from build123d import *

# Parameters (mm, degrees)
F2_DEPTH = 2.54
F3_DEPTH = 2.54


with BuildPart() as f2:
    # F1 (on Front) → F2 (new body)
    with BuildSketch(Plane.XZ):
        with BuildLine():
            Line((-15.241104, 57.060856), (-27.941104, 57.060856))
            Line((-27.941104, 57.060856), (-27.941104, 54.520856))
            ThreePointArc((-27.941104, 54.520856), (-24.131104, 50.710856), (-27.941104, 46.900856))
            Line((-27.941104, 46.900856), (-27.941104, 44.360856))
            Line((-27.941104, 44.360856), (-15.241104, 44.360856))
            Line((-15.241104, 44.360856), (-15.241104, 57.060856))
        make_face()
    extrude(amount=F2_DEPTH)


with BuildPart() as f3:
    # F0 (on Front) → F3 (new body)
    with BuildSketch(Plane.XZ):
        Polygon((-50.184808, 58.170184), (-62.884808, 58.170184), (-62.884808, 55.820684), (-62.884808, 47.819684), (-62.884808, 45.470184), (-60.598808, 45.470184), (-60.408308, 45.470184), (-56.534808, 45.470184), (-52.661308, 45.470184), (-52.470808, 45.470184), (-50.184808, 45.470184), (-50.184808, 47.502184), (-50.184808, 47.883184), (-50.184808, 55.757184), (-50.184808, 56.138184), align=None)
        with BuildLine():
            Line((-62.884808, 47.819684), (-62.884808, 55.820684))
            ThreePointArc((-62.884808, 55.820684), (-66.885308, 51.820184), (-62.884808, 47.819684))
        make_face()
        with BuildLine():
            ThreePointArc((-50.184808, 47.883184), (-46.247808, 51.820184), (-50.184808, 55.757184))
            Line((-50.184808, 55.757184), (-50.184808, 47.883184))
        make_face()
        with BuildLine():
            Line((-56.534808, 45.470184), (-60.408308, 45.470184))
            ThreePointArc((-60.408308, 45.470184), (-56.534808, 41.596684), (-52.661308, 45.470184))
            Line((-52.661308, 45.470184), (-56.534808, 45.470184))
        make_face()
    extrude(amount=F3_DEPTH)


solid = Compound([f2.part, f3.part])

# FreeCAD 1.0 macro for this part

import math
import FreeCAD as App
import Part
import Sketcher

V = App.Vector
Q = App.Units.Quantity

doc = App.newDocument("Part")
body = doc.addObject("PartDesign::Body", "Body")

sketch1 = body.newObject("Sketcher::SketchObject", "Sketch")
sketch1.AttachmentSupport = (doc.getObject("XZ_Plane"), [""])
sketch1.MapMode = "FlatFace"
sketch1.addGeometry([
    Part.LineSegment(V(-15.2, 57.1, 0), V(-27.9, 57.1, 0)),
    Part.LineSegment(V(-27.9, 57.1, 0), V(-27.9, 54.5, 0)),
    Part.ArcOfCircle(Part.Circle(V(-27.9, 50.7, 0), V(0, 0, 1), 3.8), math.radians(-90), math.radians(90)),
    Part.LineSegment(V(-27.9, 46.9, 0), V(-27.9, 44.4, 0)),
    Part.LineSegment(V(-27.9, 44.4, 0), V(-15.2, 44.4, 0)),
    Part.LineSegment(V(-15.2, 44.4, 0), V(-15.2, 57.1, 0)),
], False)
sketch1.addConstraint([
    Sketcher.Constraint("Coincident", 0, 2, 1, 1),
    Sketcher.Constraint("Coincident", 1, 2, 2, 2),
    Sketcher.Constraint("Coincident", 2, 1, 3, 1),
    Sketcher.Constraint("Coincident", 3, 2, 4, 1),
    Sketcher.Constraint("Coincident", 4, 2, 5, 1),
    Sketcher.Constraint("Coincident", 5, 2, 0, 1),
    Sketcher.Constraint("Horizontal", 0),
    Sketcher.Constraint("Vertical", 1),
    Sketcher.Constraint("Vertical", 3),
    Sketcher.Constraint("Horizontal", 4),
    Sketcher.Constraint("Vertical", 5),
    Sketcher.Constraint("Vertical", 2, 3, 0, 2),
    Sketcher.Constraint("Vertical", 1, 2, 2, 1),
    Sketcher.Constraint("Equal", 1, 3),
    Sketcher.Constraint("Equal", 4, 5),
    Sketcher.Constraint("Radius", 2, Q("0.15 in")),
    Sketcher.Constraint("DistanceX", 0, 2, 0, 1, Q("0.5 in")),
    Sketcher.Constraint("DistanceX", 2, 3, -1, 1, 27.941104),
    Sketcher.Constraint("DistanceY", -1, 1, 2, 3, 50.710856),
])
pad1 = body.newObject("PartDesign::Pad", "Pad")
pad1.Profile = sketch1
pad1.Length = Q("0.1 in")
body2 = doc.addObject("PartDesign::Body", "Body001")

sketch2 = body2.newObject("Sketcher::SketchObject", "Sketch001")
sketch2.AttachmentSupport = (doc.getObject("XZ_Plane001"), [""])
sketch2.MapMode = "FlatFace"
sketch2.addGeometry([
    Part.LineSegment(V(-50.2, 58.2, 0), V(-62.9, 58.2, 0)),
    Part.LineSegment(V(-62.9, 58.2, 0), V(-62.9, 55.8, 0)),
    Part.ArcOfCircle(Part.Circle(V(-62.9, 51.8, 0), V(0, 0, 1), 4), math.radians(90), math.radians(270)),
    Part.LineSegment(V(-62.9, 47.8, 0), V(-62.9, 45.5, 0)),
    Part.LineSegment(V(-62.9, 45.5, 0), V(-60.4, 45.5, 0)),
    Part.ArcOfCircle(Part.Circle(V(-56.5, 45.5, 0), V(0, 0, 1), 3.9), math.radians(180), math.radians(360)),
    Part.LineSegment(V(-52.7, 45.5, 0), V(-50.2, 45.5, 0)),
    Part.LineSegment(V(-50.2, 45.5, 0), V(-50.2, 47.9, 0)),
    Part.ArcOfCircle(Part.Circle(V(-50.2, 51.8, 0), V(0, 0, 1), 3.9), math.radians(-90), math.radians(90)),
    Part.LineSegment(V(-50.2, 55.8, 0), V(-50.2, 58.2, 0)),
], False)
sketch2.addConstraint([
    Sketcher.Constraint("Coincident", 0, 2, 1, 1),
    Sketcher.Constraint("Coincident", 1, 2, 2, 1),
    Sketcher.Constraint("Coincident", 2, 2, 3, 1),
    Sketcher.Constraint("Coincident", 3, 2, 4, 1),
    Sketcher.Constraint("Coincident", 4, 2, 5, 1),
    Sketcher.Constraint("Coincident", 5, 2, 6, 1),
    Sketcher.Constraint("Coincident", 6, 2, 7, 1),
    Sketcher.Constraint("Coincident", 7, 2, 8, 1),
    Sketcher.Constraint("Coincident", 8, 2, 9, 1),
    Sketcher.Constraint("Coincident", 9, 2, 0, 1),
    Sketcher.Constraint("Horizontal", 0),
    Sketcher.Constraint("Vertical", 1),
    Sketcher.Constraint("Vertical", 3),
    Sketcher.Constraint("Horizontal", 4),
    Sketcher.Constraint("Horizontal", 6),
    Sketcher.Constraint("Vertical", 7),
    Sketcher.Constraint("Vertical", 9),
    Sketcher.Constraint("Horizontal", 2, 3, 8, 3),
    Sketcher.Constraint("Horizontal", 5, 3, 3, 2),
    Sketcher.Constraint("Horizontal", 4, 2, 5, 2),
    Sketcher.Constraint("Vertical", 2, 3, 0, 2),
    Sketcher.Constraint("Vertical", 1, 2, 2, 2),
    Sketcher.Constraint("Vertical", 8, 3, 6, 2),
    Sketcher.Constraint("Vertical", 7, 2, 8, 2),
    Sketcher.Constraint("Equal", 4, 6),
    Sketcher.Constraint("Equal", 1, 3),
    Sketcher.Constraint("DistanceX", 0, 2, 0, 1, Q("0.5 in")),
    Sketcher.Constraint("Radius", 8, Q("0.155 in")),
    Sketcher.Constraint("Radius", 2, Q("0.1575 in")),
    Sketcher.Constraint("Radius", 5, Q("0.1525 in")),
    Sketcher.Constraint("DistanceY", 5, 3, 0, 2, Q("0.5 in")),
    Sketcher.Constraint("DistanceX", 2, 3, -1, 1, 62.884808),
    Sketcher.Constraint("DistanceY", -1, 1, 2, 3, 51.820184),
])
pad2 = body2.newObject("PartDesign::Pad", "Pad001")
pad2.Profile = sketch2
pad2.Length = Q("0.1 in")

doc.recompute()
